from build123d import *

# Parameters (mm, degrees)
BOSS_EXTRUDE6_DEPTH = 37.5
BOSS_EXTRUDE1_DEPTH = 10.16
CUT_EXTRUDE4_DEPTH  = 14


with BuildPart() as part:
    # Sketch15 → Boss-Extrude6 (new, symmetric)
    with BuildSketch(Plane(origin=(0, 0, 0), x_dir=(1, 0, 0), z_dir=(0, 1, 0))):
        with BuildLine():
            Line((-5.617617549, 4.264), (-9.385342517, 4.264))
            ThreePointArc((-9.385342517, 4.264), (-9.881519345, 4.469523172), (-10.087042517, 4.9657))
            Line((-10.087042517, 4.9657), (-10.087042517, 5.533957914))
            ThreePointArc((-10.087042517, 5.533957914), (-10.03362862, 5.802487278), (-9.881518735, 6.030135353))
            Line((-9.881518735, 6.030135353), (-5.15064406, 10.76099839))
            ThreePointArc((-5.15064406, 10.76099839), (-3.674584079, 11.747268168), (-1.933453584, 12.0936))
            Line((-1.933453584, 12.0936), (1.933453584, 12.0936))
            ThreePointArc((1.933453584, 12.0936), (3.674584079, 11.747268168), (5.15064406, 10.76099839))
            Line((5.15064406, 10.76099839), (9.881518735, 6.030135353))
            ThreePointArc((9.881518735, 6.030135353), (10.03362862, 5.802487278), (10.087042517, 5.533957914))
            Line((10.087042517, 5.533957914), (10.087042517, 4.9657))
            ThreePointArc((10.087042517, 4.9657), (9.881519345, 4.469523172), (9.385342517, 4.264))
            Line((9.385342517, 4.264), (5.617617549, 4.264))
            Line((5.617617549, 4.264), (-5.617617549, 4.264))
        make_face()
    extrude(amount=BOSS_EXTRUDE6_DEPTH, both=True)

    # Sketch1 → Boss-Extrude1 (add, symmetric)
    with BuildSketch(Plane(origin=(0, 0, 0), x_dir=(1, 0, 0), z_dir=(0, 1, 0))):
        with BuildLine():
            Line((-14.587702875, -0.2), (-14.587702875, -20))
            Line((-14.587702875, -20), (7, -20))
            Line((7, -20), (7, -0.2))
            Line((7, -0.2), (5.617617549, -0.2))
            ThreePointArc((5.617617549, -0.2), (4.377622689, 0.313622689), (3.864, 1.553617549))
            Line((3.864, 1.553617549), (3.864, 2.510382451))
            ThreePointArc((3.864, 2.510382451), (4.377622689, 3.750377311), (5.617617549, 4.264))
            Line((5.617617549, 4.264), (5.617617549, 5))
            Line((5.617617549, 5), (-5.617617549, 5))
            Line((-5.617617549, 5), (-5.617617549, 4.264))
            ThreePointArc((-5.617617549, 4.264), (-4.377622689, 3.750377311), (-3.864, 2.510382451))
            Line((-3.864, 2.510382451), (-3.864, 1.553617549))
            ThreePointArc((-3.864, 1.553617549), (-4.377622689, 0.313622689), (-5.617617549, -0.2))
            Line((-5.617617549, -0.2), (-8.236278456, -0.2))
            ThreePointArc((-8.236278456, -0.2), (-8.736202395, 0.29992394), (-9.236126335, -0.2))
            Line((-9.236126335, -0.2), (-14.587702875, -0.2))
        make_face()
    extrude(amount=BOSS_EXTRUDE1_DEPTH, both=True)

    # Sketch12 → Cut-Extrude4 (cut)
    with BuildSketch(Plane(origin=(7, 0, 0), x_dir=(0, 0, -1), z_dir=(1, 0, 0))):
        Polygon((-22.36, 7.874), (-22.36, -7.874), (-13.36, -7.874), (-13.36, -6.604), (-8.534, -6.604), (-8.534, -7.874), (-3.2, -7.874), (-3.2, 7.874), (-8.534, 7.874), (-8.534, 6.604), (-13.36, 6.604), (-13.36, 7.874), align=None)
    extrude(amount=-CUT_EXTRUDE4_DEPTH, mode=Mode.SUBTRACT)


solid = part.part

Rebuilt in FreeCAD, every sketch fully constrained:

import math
import FreeCAD as App
import Part
import Sketcher
from FreeCAD import Vector
Q = App.Units.Quantity

doc = App.newDocument("Part")
params = doc.addObject("Spreadsheet::Sheet", "Params")
for row, (alias, value) in enumerate([
    ("pad1_length", "75 mm"),
    ("pad2_length", "0.8 in"),
    ("sketch3_width", "0.62 in"),
    ("sketch3_width2", "0.05 in"),
    ("sketch3_height", "0.19 in"),
    ("sketch3_height2", "0.21 in"),
    ("pocket1_length", "14 mm"),
], start=1):
    params.set(f"A{row}", alias)
    params.set(f"B{row}", "=" + value)
    params.setAlias(f"B{row}", alias)

body = doc.addObject("PartDesign::Body", "Body")

sketch1 = doc.addObject("Sketcher::SketchObject", "Sketch")
body.addObject(sketch1)
sketch1.AttachmentSupport = (doc.XZ_Plane, [""])
sketch1.MapMode = "FlatFace"
sketch1.addGeometry([
    Part.ArcOfCircle(Part.Circle(Vector(-9.4, -5, 0), Vector(0, 0, 1), 0.7), math.radians(90), math.radians(180)),
    Part.LineSegment(Vector(-9.4, -4.3, 0), Vector(9.4, -4.3, 0)),
    Part.ArcOfCircle(Part.Circle(Vector(9.4, -5, 0), Vector(0, 0, 1), 0.7), math.radians(0), math.radians(90)),
    Part.LineSegment(Vector(10.1, -5, 0), Vector(10.1, -5.5, 0)),
    Part.ArcOfCircle(Part.Circle(Vector(9.4, -5.5, 0), Vector(0, 0, 1), 0.7), math.radians(-45), math.radians(0)),
    Part.LineSegment(Vector(9.9, -6, 0), Vector(5.2, -10.8, 0)),
    Part.ArcOfCircle(Part.Circle(Vector(1.9, -7.5, 0), Vector(0, 0, 1), 4.5), math.radians(-90), math.radians(-45)),
    Part.LineSegment(Vector(1.9, -12.1, 0), Vector(-1.9, -12.1, 0)),
    Part.ArcOfCircle(Part.Circle(Vector(-1.9, -7.5, 0), Vector(0, 0, 1), 4.5), math.radians(-135), math.radians(-90)),
    Part.LineSegment(Vector(-5.2, -10.8, 0), Vector(-9.9, -6, 0)),
    Part.ArcOfCircle(Part.Circle(Vector(-9.4, -5.5, 0), Vector(0, 0, 1), 0.7), math.radians(180), math.radians(225)),
    Part.LineSegment(Vector(-10.1, -5.5, 0), Vector(-10.1, -5, 0)),
], False)
sketch1.addConstraint([
    Sketcher.Constraint("Tangent", 0, 1, 1, 1),
    Sketcher.Constraint("Tangent", 1, 2, 2, 2),
    Sketcher.Constraint("Tangent", 2, 1, 3, 1),
    Sketcher.Constraint("Tangent", 3, 2, 4, 2),
    Sketcher.Constraint("Tangent", 4, 1, 5, 1),
    Sketcher.Constraint("Tangent", 5, 2, 6, 2),
    Sketcher.Constraint("Tangent", 6, 1, 7, 1),
    Sketcher.Constraint("Tangent", 7, 2, 8, 2),
    Sketcher.Constraint("Tangent", 8, 1, 9, 1),
    Sketcher.Constraint("Tangent", 9, 2, 10, 2),
    Sketcher.Constraint("Tangent", 10, 1, 11, 1),
    Sketcher.Constraint("Tangent", 11, 2, 0, 2),
    Sketcher.Constraint("Horizontal", 1),
    Sketcher.Constraint("Vertical", 3),
    Sketcher.Constraint("Horizontal", 7),
    Sketcher.Constraint("Vertical", 11),
    Sketcher.Constraint("Equal", 0, 2),
    Sketcher.Constraint("Equal", 2, 4),
    Sketcher.Constraint("Equal", 6, 8),
    Sketcher.Constraint("Equal", 4, 10),
    Sketcher.Constraint("Symmetric", 4, 3, 10, 3, -2),
    Sketcher.Constraint("Horizontal", 5, 2, 8, 1),
    Sketcher.Constraint("Radius", 0, Q("0.7017 mm")),
    Sketcher.Constraint("Radius", 6, Q("4.5498 mm")),
    Sketcher.Constraint("DistanceY", 6, 3, -1, 1, Q("0.297 in")),
    Sketcher.Constraint("DistanceY", 0, 3, -1, 1, Q("0.1955 in")),
    Sketcher.Constraint("DistanceY", 5, 2, -1, 1, Q("10.760998 mm")),
    Sketcher.Constraint("DistanceX", 5, 2, 4, 3, Q("4.234698 mm")),
    Sketcher.Constraint("DistanceX", 1, 1, 1, 2, Q("18.770685 mm")),
])
pad1 = doc.addObject("PartDesign::Pad", "Pad")
body.addObject(pad1)
pad1.Profile = sketch1
pad1.setExpression("Length", "Params.pad1_length")
pad1.Midplane = True

sketch2 = doc.addObject("Sketcher::SketchObject", "Sketch001")
body.addObject(sketch2)
sketch2.AttachmentSupport = (doc.XZ_Plane, [""])
sketch2.MapMode = "FlatFace"
sketch2.addGeometry([
    Part.LineSegment(Vector(-14.59, 0.2, 0), Vector(-14.59, 20, 0)),
    Part.LineSegment(Vector(-14.59, 20, 0), Vector(7, 20, 0)),
    Part.LineSegment(Vector(7, 20, 0), Vector(7, 0.2, 0)),
    Part.LineSegment(Vector(7, 0.2, 0), Vector(5.62, 0.2, 0)),
    Part.ArcOfCircle(Part.Circle(Vector(5.62, -1.55, 0), Vector(0, 0, 1), 1.75), math.radians(90), math.radians(180)),
    Part.LineSegment(Vector(3.86, -1.55, 0), Vector(3.86, -2.51, 0)),
    Part.ArcOfCircle(Part.Circle(Vector(5.62, -2.51, 0), Vector(0, 0, 1), 1.75), math.radians(-180), math.radians(-90)),
    Part.LineSegment(Vector(5.62, -4.26, 0), Vector(5.62, -5, 0)),
    Part.LineSegment(Vector(5.62, -5, 0), Vector(-5.62, -5, 0)),
    Part.LineSegment(Vector(-5.62, -5, 0), Vector(-5.62, -4.26, 0)),
    Part.ArcOfCircle(Part.Circle(Vector(-5.62, -2.51, 0), Vector(0, 0, 1), 1.75), math.radians(-90), math.radians(0)),
    Part.LineSegment(Vector(-3.86, -2.51, 0), Vector(-3.86, -1.55, 0)),
    Part.ArcOfCircle(Part.Circle(Vector(-5.62, -1.55, 0), Vector(0, 0, 1), 1.75), math.radians(0), math.radians(90)),
    Part.LineSegment(Vector(-5.62, 0.2, 0), Vector(-8.24, 0.2, 0)),
    Part.ArcOfCircle(Part.Circle(Vector(-8.74, 0.2, 0), Vector(0, 0, 1), 0.5), math.radians(180), math.radians(360)),
    Part.LineSegment(Vector(-9.24, 0.2, 0), Vector(-14.59, 0.2, 0)),
], False)
sketch2.addConstraint([
    Sketcher.Constraint("Coincident", 0, 2, 1, 1),
    Sketcher.Constraint("Coincident", 1, 2, 2, 1),
    Sketcher.Constraint("Coincident", 2, 2, 3, 1),
    Sketcher.Constraint("Tangent", 3, 2, 4, 1),
    Sketcher.Constraint("Tangent", 4, 2, 5, 1),
    Sketcher.Constraint("Tangent", 5, 2, 6, 1),
    Sketcher.Constraint("Coincident", 6, 2, 7, 1),
    Sketcher.Constraint("Coincident", 7, 2, 8, 1),
    Sketcher.Constraint("Coincident", 8, 2, 9, 1),
    Sketcher.Constraint("Coincident", 9, 2, 10, 1),
    Sketcher.Constraint("Tangent", 10, 2, 11, 1),
    Sketcher.Constraint("Tangent", 11, 2, 12, 1),
    Sketcher.Constraint("Tangent", 12, 2, 13, 1),
    Sketcher.Constraint("Coincident", 13, 2, 14, 2),
    Sketcher.Constraint("Coincident", 14, 1, 15, 1),
    Sketcher.Constraint("Coincident", 15, 2, 0, 1),
    Sketcher.Constraint("Vertical", 0),
    Sketcher.Constraint("Horizontal", 1),
    Sketcher.Constraint("Vertical", 2),
    Sketcher.Constraint("Horizontal", 3),
    Sketcher.Constraint("Vertical", 5),
    Sketcher.Constraint("Vertical", 7),
    Sketcher.Constraint("Horizontal", 8),
    Sketcher.Constraint("Vertical", 9),
    Sketcher.Constraint("Vertical", 11),
    Sketcher.Constraint("Horizontal", 13),
    Sketcher.Constraint("Horizontal", 15),
    Sketcher.Constraint("Equal", 4, 6),
    Sketcher.Constraint("Equal", 6, 10),
    Sketcher.Constraint("Equal", 10, 12),
    Sketcher.Constraint("Symmetric", 6, 3, 10, 3, -2),
    Sketcher.Constraint("Horizontal", 4, 3, 12, 3),
    Sketcher.Constraint("Horizontal", 14, 3, 2, 2),
    Sketcher.Constraint("Horizontal", 13, 2, 14, 1),
    Sketcher.Constraint("Vertical", 3, 2, 6, 2),
    Sketcher.Constraint("Vertical", 12, 3, 8, 2),
    Sketcher.Constraint("DistanceY", 0, 1, 0, 2, Q("19.8 mm")),
    Sketcher.Constraint("DistanceY", 7, 2, 7, 1, Q("0.736 mm")),
    Sketcher.Constraint("Radius", 4, Q("1.753618 mm")),
    Sketcher.Constraint("Radius", 14, Q("0.499924 mm")),
    Sketcher.Constraint("DistanceX", 13, 2, 13, 1, Q("2.618661 mm")),
    Sketcher.Constraint("DistanceY", -1, 1, 14, 3, Q("0.2 mm")),
    Sketcher.Constraint("DistanceX", -1, 1, 1, 2, Q("7 mm")),
    Sketcher.Constraint("DistanceX", -1, 1, 4, 2, Q("3.864 mm")),
    Sketcher.Constraint("DistanceY", 6, 2, -1, 1, Q("4.264 mm")),
    Sketcher.Constraint("DistanceX", 0, 2, 14, 3, Q("5.8515 mm")),
])
pad2 = doc.addObject("PartDesign::Pad", "Pad001")
body.addObject(pad2)
pad2.Profile = sketch2
pad2.setExpression("Length", "Params.pad2_length")
pad2.Midplane = True

sketch3 = doc.addObject("Sketcher::SketchObject", "Sketch002")
body.addObject(sketch3)
sketch3.AttachmentSupport = (doc.YZ_Plane, [""])
sketch3.MapMode = "FlatFace"
sketch3.AttachmentOffset = App.Placement(Vector(0, 0, 7), App.Rotation())
sketch3.addGeometry([
    Part.LineSegment(Vector(7.9, 22.4, 0), Vector(-7.9, 22.4, 0)),
    Part.LineSegment(Vector(-7.9, 22.4, 0), Vector(-7.9, 13.4, 0)),
    Part.LineSegment(Vector(-7.9, 13.4, 0), Vector(-6.6, 13.4, 0)),
    Part.LineSegment(Vector(-6.6, 13.4, 0), Vector(-6.6, 8.5, 0)),
    Part.LineSegment(Vector(-6.6, 8.5, 0), Vector(-7.9, 8.5, 0)),
    Part.LineSegment(Vector(-7.9, 8.5, 0), Vector(-7.9, 3.2, 0)),
    Part.LineSegment(Vector(-7.9, 3.2, 0), Vector(7.9, 3.2, 0)),
    Part.LineSegment(Vector(7.9, 3.2, 0), Vector(7.9, 8.5, 0)),
    Part.LineSegment(Vector(7.9, 8.5, 0), Vector(6.6, 8.5, 0)),
    Part.LineSegment(Vector(6.6, 8.5, 0), Vector(6.6, 13.4, 0)),
    Part.LineSegment(Vector(6.6, 13.4, 0), Vector(7.9, 13.4, 0)),
    Part.LineSegment(Vector(7.9, 13.4, 0), Vector(7.9, 22.4, 0)),
], False)
sketch3.addConstraint([
    Sketcher.Constraint("Coincident", 0, 2, 1, 1),
    Sketcher.Constraint("Coincident", 1, 2, 2, 1),
    Sketcher.Constraint("Coincident", 2, 2, 3, 1),
    Sketcher.Constraint("Coincident", 3, 2, 4, 1),
    Sketcher.Constraint("Coincident", 4, 2, 5, 1),
    Sketcher.Constraint("Coincident", 5, 2, 6, 1),
    Sketcher.Constraint("Coincident", 6, 2, 7, 1),
    Sketcher.Constraint("Coincident", 7, 2, 8, 1),
    Sketcher.Constraint("Coincident", 8, 2, 9, 1),
    Sketcher.Constraint("Coincident", 9, 2, 10, 1),
    Sketcher.Constraint("Coincident", 10, 2, 11, 1),
    Sketcher.Constraint("Coincident", 11, 2, 0, 1),
    Sketcher.Constraint("Horizontal", 0),
    Sketcher.Constraint("Vertical", 1),
    Sketcher.Constraint("Horizontal", 2),
    Sketcher.Constraint("Vertical", 3),
    Sketcher.Constraint("Horizontal", 4),
    Sketcher.Constraint("Vertical", 5),
    Sketcher.Constraint("Horizontal", 6),
    Sketcher.Constraint("Vertical", 7),
    Sketcher.Constraint("Horizontal", 8),
    Sketcher.Constraint("Vertical", 9),
    Sketcher.Constraint("Horizontal", 10),
    Sketcher.Constraint("Vertical", 11),
    Sketcher.Constraint("Symmetric", 4, 2, 7, 2, -2),
    Sketcher.Constraint("Symmetric", 2, 2, 9, 2, -2),
    Sketcher.Constraint("Vertical", 1, 2, 4, 2),
    Sketcher.Constraint("Vertical", 7, 2, 10, 2),
    Sketcher.Constraint("DistanceX", 0, 2, 0, 1, Q("0.62 in")),
    Sketcher.Constraint("DistanceX", 2, 1, 2, 2, Q("0.05 in")),
    Sketcher.Constraint("DistanceY", 3, 2, 3, 1, Q("0.19 in")),
    Sketcher.Constraint("DistanceY", 5, 2, 5, 1, Q("0.21 in")),
    Sketcher.Constraint("DistanceY", 1, 2, 1, 1, Q("9 mm")),
    Sketcher.Constraint("DistanceY", -1, 1, 0, 2, Q("22.36 mm")),
])
sketch3.setExpression("Constraints[28]", "Params.sketch3_width")
sketch3.setExpression("Constraints[29]", "Params.sketch3_width2")
sketch3.setExpression("Constraints[30]", "Params.sketch3_height")
sketch3.setExpression("Constraints[31]", "Params.sketch3_height2")
pocket1 = doc.addObject("PartDesign::Pocket", "Pocket")
body.addObject(pocket1)
pocket1.Profile = sketch3
pocket1.setExpression("Length", "Params.pocket1_length")

doc.recompute()
